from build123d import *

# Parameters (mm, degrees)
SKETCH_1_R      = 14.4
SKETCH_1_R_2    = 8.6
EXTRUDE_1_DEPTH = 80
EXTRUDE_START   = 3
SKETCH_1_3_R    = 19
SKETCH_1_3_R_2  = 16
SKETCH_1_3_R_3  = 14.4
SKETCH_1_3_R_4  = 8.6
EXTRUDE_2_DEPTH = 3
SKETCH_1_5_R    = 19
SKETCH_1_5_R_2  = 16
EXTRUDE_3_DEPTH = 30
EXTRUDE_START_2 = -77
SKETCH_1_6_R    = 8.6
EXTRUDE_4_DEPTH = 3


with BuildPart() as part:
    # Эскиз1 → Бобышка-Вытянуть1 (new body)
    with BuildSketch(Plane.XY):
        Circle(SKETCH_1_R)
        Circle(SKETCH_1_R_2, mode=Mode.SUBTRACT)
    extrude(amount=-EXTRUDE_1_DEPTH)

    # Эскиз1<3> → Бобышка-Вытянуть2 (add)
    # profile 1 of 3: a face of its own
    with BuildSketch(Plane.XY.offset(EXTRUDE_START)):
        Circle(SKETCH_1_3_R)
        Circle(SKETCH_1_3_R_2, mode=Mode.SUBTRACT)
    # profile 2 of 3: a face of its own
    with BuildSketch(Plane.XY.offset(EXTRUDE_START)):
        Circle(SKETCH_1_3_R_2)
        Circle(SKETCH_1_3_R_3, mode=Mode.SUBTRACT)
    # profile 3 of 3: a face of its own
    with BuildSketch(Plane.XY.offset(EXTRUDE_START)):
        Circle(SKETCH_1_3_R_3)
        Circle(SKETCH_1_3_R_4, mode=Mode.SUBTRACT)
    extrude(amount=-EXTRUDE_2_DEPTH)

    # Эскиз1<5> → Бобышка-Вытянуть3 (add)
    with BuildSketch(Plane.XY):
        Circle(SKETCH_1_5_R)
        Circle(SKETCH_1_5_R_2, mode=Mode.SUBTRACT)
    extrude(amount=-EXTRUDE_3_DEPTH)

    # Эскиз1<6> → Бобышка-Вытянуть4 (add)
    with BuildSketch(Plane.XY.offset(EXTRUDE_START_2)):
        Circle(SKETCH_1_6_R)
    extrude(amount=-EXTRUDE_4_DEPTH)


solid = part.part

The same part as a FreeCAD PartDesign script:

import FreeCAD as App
import Part
import Sketcher

doc = App.newDocument("Part")
params = doc.addObject("Spreadsheet::Sheet", "Params")
for row, (alias, value) in enumerate([
    ("sketch1_diameter", "28.8 mm"),
    ("sketch1_diameter2", "17.2 mm"),
    ("pad1_length", "80 mm"),
    ("sketch2_diameter", "38 mm"),
    ("sketch2_diameter2", "17.2 mm"),
    ("pad2_length", "3 mm"),
    ("sketch3_diameter", "38 mm"),
    ("sketch3_diameter2", "32 mm"),
    ("pad3_length", "30 mm"),
    ("sketch4_diameter", "17.2 mm"),
    ("pad4_length", "3 mm"),
], start=1):
    params.set(f"A{row}", alias)
    params.set(f"B{row}", "=" + value)
    params.setAlias(f"B{row}", alias)

body = doc.addObject("PartDesign::Body", "Body")

sketch1 = body.newObject("Sketcher::SketchObject", "Sketch")
sketch1.AttachmentSupport = (doc.getObject("XY_Plane"), [""])
sketch1.MapMode = "FlatFace"
sketch1.addGeometry(Part.Circle(App.Vector(0, 0, 0), App.Vector(0, 0, 1), 14), False)
sketch1.addGeometry(Part.Circle(App.Vector(0, 0, 0), App.Vector(0, 0, 1), 9), False)
sketch1.addConstraint(Sketcher.Constraint("Coincident", 0, 3, -1, 1))
sketch1.addConstraint(Sketcher.Constraint("Coincident", 1, 3, -1, 1))
sketch1.addConstraint(Sketcher.Constraint("Diameter", 0, 28.8))
sketch1.addConstraint(Sketcher.Constraint("Diameter", 1, 17.2))
sketch1.setExpression("Constraints[2]", "Params.sketch1_diameter")
sketch1.setExpression("Constraints[3]", "Params.sketch1_diameter2")
pad1 = body.newObject("PartDesign::Pad", "Pad")
pad1.Profile = sketch1
pad1.setExpression("Length", "Params.pad1_length")
pad1.Reversed = True

sketch2 = body.newObject("Sketcher::SketchObject", "Sketch001")
sketch2.AttachmentSupport = (doc.getObject("XY_Plane"), [""])
sketch2.MapMode = "FlatFace"
sketch2.AttachmentOffset = App.Placement(App.Vector(0, 0, 3), App.Rotation())
sketch2.addGeometry(Part.Circle(App.Vector(0, 0, 0), App.Vector(0, 0, 1), 19), False)
sketch2.addGeometry(Part.Circle(App.Vector(0, 0, 0), App.Vector(0, 0, 1), 9), False)
sketch2.addConstraint(Sketcher.Constraint("Coincident", 0, 3, -1, 1))
sketch2.addConstraint(Sketcher.Constraint("Coincident", 1, 3, -1, 1))
sketch2.addConstraint(Sketcher.Constraint("Diameter", 0, 38.0))
sketch2.addConstraint(Sketcher.Constraint("Diameter", 1, 17.2))
sketch2.setExpression("Constraints[2]", "Params.sketch2_diameter")
sketch2.setExpression("Constraints[3]", "Params.sketch2_diameter2")
pad2 = body.newObject("PartDesign::Pad", "Pad001")
pad2.Profile = sketch2
pad2.setExpression("Length", "Params.pad2_length")
pad2.Reversed = True

sketch3 = body.newObject("Sketcher::SketchObject", "Sketch002")
sketch3.AttachmentSupport = (doc.getObject("XY_Plane"), [""])
sketch3.MapMode = "FlatFace"
sketch3.addGeometry(Part.Circle(App.Vector(0, 0, 0), App.Vector(0, 0, 1), 19), False)
sketch3.addGeometry(Part.Circle(App.Vector(0, 0, 0), App.Vector(0, 0, 1), 16), False)
sketch3.addConstraint(Sketcher.Constraint("Coincident", 0, 3, -1, 1))
sketch3.addConstraint(Sketcher.Constraint("Coincident", 1, 3, -1, 1))
sketch3.addConstraint(Sketcher.Constraint("Diameter", 0, 38.0))
sketch3.addConstraint(Sketcher.Constraint("Diameter", 1, 32.0))
sketch3.setExpression("Constraints[2]", "Params.sketch3_diameter")
sketch3.setExpression("Constraints[3]", "Params.sketch3_diameter2")
pad3 = body.newObject("PartDesign::Pad", "Pad002")
pad3.Profile = sketch3
pad3.setExpression("Length", "Params.pad3_length")
pad3.Reversed = True

sketch4 = body.newObject("Sketcher::SketchObject", "Sketch003")
sketch4.AttachmentSupport = (doc.getObject("XY_Plane"), [""])
sketch4.MapMode = "FlatFace"
sketch4.AttachmentOffset = App.Placement(App.Vector(0, 0, -77), App.Rotation())
sketch4.addGeometry(Part.Circle(App.Vector(0, 0, 0), App.Vector(0, 0, 1), 9), False)
sketch4.addConstraint(Sketcher.Constraint("Coincident", 0, 3, -1, 1))
sketch4.addConstraint(Sketcher.Constraint("Diameter", 0, 17.2))
sketch4.setExpression("Constraints[1]", "Params.sketch4_diameter")
pad4 = body.newObject("PartDesign::Pad", "Pad003")
pad4.Profile = sketch4
pad4.setExpression("Length", "Params.pad4_length")
pad4.Reversed = True

doc.recompute()
